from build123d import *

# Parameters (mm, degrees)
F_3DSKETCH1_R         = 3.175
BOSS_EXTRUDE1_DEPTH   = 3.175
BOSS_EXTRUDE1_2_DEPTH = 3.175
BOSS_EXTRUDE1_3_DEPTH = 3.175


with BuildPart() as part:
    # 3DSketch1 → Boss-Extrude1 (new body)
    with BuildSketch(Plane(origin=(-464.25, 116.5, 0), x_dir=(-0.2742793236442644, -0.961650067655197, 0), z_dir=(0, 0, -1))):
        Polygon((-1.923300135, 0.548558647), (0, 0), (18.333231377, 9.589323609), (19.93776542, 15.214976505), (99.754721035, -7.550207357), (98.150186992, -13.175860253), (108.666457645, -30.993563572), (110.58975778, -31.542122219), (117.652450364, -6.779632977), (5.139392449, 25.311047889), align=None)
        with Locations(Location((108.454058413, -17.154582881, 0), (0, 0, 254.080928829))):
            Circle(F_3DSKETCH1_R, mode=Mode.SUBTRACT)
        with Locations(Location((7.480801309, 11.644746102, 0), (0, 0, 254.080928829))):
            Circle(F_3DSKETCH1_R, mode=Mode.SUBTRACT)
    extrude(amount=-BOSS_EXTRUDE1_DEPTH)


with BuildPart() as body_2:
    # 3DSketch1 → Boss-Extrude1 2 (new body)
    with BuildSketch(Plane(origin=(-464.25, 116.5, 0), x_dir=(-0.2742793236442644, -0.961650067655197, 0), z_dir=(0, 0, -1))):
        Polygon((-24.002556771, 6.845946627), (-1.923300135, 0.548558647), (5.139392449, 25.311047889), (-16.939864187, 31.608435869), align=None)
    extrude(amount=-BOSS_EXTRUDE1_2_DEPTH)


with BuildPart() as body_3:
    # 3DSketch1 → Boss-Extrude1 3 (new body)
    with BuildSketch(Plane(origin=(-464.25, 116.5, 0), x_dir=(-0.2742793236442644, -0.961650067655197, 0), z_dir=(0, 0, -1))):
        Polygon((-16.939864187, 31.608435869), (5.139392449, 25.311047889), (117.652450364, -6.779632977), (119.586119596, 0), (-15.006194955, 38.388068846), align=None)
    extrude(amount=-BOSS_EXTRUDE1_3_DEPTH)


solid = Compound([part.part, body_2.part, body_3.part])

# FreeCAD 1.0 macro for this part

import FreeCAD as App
import Part
import Sketcher
from FreeCAD import Vector

doc = App.newDocument("Part")
body = doc.addObject("PartDesign::Body", "Body")

sketch1 = doc.addObject("Sketcher::SketchObject", "Sketch")
body.addObject(sketch1)
sketch1.AttachmentSupport = (doc.XY_Plane, [""])
sketch1.MapMode = "FlatFace"
sketch1.addGeometry([
    Part.LineSegment(Vector(-464.2, 118.5, 0), Vector(-464.2, 116.5, 0)),
    Part.LineSegment(Vector(-464.2, 116.5, 0), Vector(-478.5, 101.5, 0)),
    Part.LineSegment(Vector(-478.5, 101.5, 0), Vector(-484.4, 101.5, 0)),
    Part.LineSegment(Vector(-484.4, 101.5, 0), Vector(-484.4, 18.5, 0)),
    Part.LineSegment(Vector(-484.4, 18.5, 0), Vector(-478.5, 18.5, 0)),
    Part.LineSegment(Vector(-478.5, 18.5, 0), Vector(-464.3, 3.5, 0)),
    Part.LineSegment(Vector(-464.3, 3.5, 0), Vector(-464.3, 1.5, 0)),
    Part.LineSegment(Vector(-464.3, 1.5, 0), Vector(-490, 1.5, 0)),
    Part.LineSegment(Vector(-490, 1.5, 0), Vector(-490, 118.5, 0)),
    Part.LineSegment(Vector(-490, 118.5, 0), Vector(-464.2, 118.5, 0)),
    Part.Circle(Vector(-477.5, 7.5, 0), Vector(0, 0, 1), 3.2),
    Part.Circle(Vector(-477.5, 112.5, 0), Vector(0, 0, 1), 3.2),
], False)
sketch1.addConstraint([
    Sketcher.Constraint("Coincident", 0, 2, 1, 1),
    Sketcher.Constraint("Coincident", 1, 2, 2, 1),
    Sketcher.Constraint("Coincident", 2, 2, 3, 1),
    Sketcher.Constraint("Coincident", 3, 2, 4, 1),
    Sketcher.Constraint("Coincident", 4, 2, 5, 1),
    Sketcher.Constraint("Coincident", 5, 2, 6, 1),
    Sketcher.Constraint("Coincident", 6, 2, 7, 1),
    Sketcher.Constraint("Coincident", 7, 2, 8, 1),
    Sketcher.Constraint("Coincident", 8, 2, 9, 1),
    Sketcher.Constraint("Coincident", 9, 2, 0, 1),
    Sketcher.Constraint("Vertical", 0),
    Sketcher.Constraint("Horizontal", 2),
    Sketcher.Constraint("Vertical", 3),
    Sketcher.Constraint("Horizontal", 4),
    Sketcher.Constraint("Vertical", 6),
    Sketcher.Constraint("Horizontal", 7),
    Sketcher.Constraint("Vertical", 8),
    Sketcher.Constraint("Horizontal", 9),
    Sketcher.Constraint("Equal", 10, 11),
    Sketcher.Constraint("Vertical", 10, 3, 11, 3),
    Sketcher.Constraint("Vertical", 1, 2, 4, 2),
    Sketcher.Constraint("Vertical", 0, 2, 5, 2),
    Sketcher.Constraint("Equal", 0, 6),
    Sketcher.Constraint("Equal", 1, 5),
    Sketcher.Constraint("Diameter", 10, 6.35),
    Sketcher.Constraint("DistanceY", 0, 2, 0, 1, 2.0),
    Sketcher.Constraint("DistanceY", 3, 2, 3, 1, 83.0),
    Sketcher.Constraint("DistanceY", 8, 1, 8, 2, 117.0),
    Sketcher.Constraint("DistanceX", 7, 2, -1, 1, 490.0),
    Sketcher.Constraint("DistanceY", 10, 3, 11, 3, 105.0),
    Sketcher.Constraint("DistanceY", 11, 3, 0, 2, 4.0),
    Sketcher.Constraint("DistanceX", 1, 2, 11, 3, 1.0),
    Sketcher.Constraint("DistanceX", 2, 2, 2, 1, 5.85),
    Sketcher.Constraint("DistanceX", 7, 2, 7, 1, 25.75),
    Sketcher.Constraint("DistanceX", 10, 3, -1, 1, 477.5),
    Sketcher.Constraint("DistanceY", -1, 1, 10, 3, 7.5),
])
pad1 = doc.addObject("PartDesign::Pad", "Pad")
body.addObject(pad1)
pad1.Profile = sketch1
pad1.Length = 3.175
body2 = doc.addObject("PartDesign::Body", "Body001")

sketch2 = doc.addObject("Sketcher::SketchObject", "Sketch001")
body2.addObject(sketch2)
sketch2.AttachmentSupport = (doc.getObject("XY_Plane001"), [""])
sketch2.MapMode = "FlatFace"
sketch2.addGeometry([
    Part.LineSegment(Vector(-464, 141, 0), Vector(-464, 118, 0)),
    Part.LineSegment(Vector(-464, 118, 0), Vector(-490, 119, 0)),
    Part.LineSegment(Vector(-490, 119, 0), Vector(-490, 141, 0)),
    Part.LineSegment(Vector(-490, 141, 0), Vector(-464, 141, 0)),
], False)
sketch2.addConstraint([
    Sketcher.Constraint("Coincident", 0, 2, 1, 1),
    Sketcher.Constraint("Coincident", 1, 2, 2, 1),
    Sketcher.Constraint("Coincident", 2, 2, 3, 1),
    Sketcher.Constraint("Coincident", 3, 2, 0, 1),
    Sketcher.Constraint("Vertical", 0),
    Sketcher.Constraint("Horizontal", 1),
    Sketcher.Constraint("Vertical", 2),
    Sketcher.Constraint("Horizontal", 3),
    Sketcher.Constraint("DistanceX", 1, 2, -1, 1, 490.0),
    Sketcher.Constraint("DistanceX", 1, 2, 1, 1, 25.75),
    Sketcher.Constraint("DistanceY", -1, 1, 0, 2, 118.5),
    Sketcher.Constraint("DistanceY", 0, 2, 0, 1, 22.959762),
])
pad2 = doc.addObject("PartDesign::Pad", "Pad001")
body2.addObject(pad2)
pad2.Profile = sketch2
pad2.Length = 3.175
body3 = doc.addObject("PartDesign::Body", "Body002")

sketch3 = doc.addObject("Sketcher::SketchObject", "Sketch002")
body3.addObject(sketch3)
sketch3.AttachmentSupport = (doc.getObject("XY_Plane002"), [""])
sketch3.MapMode = "FlatFace"
sketch3.addGeometry([
    Part.LineSegment(Vector(-490, 141, 0), Vector(-490, 119, 0)),
    Part.LineSegment(Vector(-490, 119, 0), Vector(-490, 1, 0)),
    Part.LineSegment(Vector(-490, 1, 0), Vector(-497, 1, 0)),
    Part.LineSegment(Vector(-497, 1, 0), Vector(-497, 141, 0)),
    Part.LineSegment(Vector(-497, 141, 0), Vector(-490, 141, 0)),
], False)
sketch3.addConstraint([
    Sketcher.Constraint("Coincident", 0, 2, 1, 1),
    Sketcher.Constraint("Coincident", 1, 2, 2, 1),
    Sketcher.Constraint("Coincident", 2, 2, 3, 1),
    Sketcher.Constraint("Coincident", 3, 2, 4, 1),
    Sketcher.Constraint("Coincident", 4, 2, 0, 1),
    Sketcher.Constraint("Vertical", 0),
    Sketcher.Constraint("Vertical", 1),
    Sketcher.Constraint("Horizontal", 2),
    Sketcher.Constraint("Vertical", 3),
    Sketcher.Constraint("Horizontal", 4),
    Sketcher.Constraint("DistanceY", 1, 2, 1, 1, 117.0),
    Sketcher.Constraint("DistanceX", 0, 2, -1, 1, 490.0),
    Sketcher.Constraint("DistanceX", 2, 2, 2, 1, 7.05),
    Sketcher.Constraint("DistanceY", -1, 1, 0, 2, 118.5),
    Sketcher.Constraint("DistanceY", 0, 2, 0, 1, 22.959762),
])
pad3 = doc.addObject("PartDesign::Pad", "Pad002")
body3.addObject(pad3)
pad3.Profile = sketch3
pad3.Length = 3.175

doc.recompute()
